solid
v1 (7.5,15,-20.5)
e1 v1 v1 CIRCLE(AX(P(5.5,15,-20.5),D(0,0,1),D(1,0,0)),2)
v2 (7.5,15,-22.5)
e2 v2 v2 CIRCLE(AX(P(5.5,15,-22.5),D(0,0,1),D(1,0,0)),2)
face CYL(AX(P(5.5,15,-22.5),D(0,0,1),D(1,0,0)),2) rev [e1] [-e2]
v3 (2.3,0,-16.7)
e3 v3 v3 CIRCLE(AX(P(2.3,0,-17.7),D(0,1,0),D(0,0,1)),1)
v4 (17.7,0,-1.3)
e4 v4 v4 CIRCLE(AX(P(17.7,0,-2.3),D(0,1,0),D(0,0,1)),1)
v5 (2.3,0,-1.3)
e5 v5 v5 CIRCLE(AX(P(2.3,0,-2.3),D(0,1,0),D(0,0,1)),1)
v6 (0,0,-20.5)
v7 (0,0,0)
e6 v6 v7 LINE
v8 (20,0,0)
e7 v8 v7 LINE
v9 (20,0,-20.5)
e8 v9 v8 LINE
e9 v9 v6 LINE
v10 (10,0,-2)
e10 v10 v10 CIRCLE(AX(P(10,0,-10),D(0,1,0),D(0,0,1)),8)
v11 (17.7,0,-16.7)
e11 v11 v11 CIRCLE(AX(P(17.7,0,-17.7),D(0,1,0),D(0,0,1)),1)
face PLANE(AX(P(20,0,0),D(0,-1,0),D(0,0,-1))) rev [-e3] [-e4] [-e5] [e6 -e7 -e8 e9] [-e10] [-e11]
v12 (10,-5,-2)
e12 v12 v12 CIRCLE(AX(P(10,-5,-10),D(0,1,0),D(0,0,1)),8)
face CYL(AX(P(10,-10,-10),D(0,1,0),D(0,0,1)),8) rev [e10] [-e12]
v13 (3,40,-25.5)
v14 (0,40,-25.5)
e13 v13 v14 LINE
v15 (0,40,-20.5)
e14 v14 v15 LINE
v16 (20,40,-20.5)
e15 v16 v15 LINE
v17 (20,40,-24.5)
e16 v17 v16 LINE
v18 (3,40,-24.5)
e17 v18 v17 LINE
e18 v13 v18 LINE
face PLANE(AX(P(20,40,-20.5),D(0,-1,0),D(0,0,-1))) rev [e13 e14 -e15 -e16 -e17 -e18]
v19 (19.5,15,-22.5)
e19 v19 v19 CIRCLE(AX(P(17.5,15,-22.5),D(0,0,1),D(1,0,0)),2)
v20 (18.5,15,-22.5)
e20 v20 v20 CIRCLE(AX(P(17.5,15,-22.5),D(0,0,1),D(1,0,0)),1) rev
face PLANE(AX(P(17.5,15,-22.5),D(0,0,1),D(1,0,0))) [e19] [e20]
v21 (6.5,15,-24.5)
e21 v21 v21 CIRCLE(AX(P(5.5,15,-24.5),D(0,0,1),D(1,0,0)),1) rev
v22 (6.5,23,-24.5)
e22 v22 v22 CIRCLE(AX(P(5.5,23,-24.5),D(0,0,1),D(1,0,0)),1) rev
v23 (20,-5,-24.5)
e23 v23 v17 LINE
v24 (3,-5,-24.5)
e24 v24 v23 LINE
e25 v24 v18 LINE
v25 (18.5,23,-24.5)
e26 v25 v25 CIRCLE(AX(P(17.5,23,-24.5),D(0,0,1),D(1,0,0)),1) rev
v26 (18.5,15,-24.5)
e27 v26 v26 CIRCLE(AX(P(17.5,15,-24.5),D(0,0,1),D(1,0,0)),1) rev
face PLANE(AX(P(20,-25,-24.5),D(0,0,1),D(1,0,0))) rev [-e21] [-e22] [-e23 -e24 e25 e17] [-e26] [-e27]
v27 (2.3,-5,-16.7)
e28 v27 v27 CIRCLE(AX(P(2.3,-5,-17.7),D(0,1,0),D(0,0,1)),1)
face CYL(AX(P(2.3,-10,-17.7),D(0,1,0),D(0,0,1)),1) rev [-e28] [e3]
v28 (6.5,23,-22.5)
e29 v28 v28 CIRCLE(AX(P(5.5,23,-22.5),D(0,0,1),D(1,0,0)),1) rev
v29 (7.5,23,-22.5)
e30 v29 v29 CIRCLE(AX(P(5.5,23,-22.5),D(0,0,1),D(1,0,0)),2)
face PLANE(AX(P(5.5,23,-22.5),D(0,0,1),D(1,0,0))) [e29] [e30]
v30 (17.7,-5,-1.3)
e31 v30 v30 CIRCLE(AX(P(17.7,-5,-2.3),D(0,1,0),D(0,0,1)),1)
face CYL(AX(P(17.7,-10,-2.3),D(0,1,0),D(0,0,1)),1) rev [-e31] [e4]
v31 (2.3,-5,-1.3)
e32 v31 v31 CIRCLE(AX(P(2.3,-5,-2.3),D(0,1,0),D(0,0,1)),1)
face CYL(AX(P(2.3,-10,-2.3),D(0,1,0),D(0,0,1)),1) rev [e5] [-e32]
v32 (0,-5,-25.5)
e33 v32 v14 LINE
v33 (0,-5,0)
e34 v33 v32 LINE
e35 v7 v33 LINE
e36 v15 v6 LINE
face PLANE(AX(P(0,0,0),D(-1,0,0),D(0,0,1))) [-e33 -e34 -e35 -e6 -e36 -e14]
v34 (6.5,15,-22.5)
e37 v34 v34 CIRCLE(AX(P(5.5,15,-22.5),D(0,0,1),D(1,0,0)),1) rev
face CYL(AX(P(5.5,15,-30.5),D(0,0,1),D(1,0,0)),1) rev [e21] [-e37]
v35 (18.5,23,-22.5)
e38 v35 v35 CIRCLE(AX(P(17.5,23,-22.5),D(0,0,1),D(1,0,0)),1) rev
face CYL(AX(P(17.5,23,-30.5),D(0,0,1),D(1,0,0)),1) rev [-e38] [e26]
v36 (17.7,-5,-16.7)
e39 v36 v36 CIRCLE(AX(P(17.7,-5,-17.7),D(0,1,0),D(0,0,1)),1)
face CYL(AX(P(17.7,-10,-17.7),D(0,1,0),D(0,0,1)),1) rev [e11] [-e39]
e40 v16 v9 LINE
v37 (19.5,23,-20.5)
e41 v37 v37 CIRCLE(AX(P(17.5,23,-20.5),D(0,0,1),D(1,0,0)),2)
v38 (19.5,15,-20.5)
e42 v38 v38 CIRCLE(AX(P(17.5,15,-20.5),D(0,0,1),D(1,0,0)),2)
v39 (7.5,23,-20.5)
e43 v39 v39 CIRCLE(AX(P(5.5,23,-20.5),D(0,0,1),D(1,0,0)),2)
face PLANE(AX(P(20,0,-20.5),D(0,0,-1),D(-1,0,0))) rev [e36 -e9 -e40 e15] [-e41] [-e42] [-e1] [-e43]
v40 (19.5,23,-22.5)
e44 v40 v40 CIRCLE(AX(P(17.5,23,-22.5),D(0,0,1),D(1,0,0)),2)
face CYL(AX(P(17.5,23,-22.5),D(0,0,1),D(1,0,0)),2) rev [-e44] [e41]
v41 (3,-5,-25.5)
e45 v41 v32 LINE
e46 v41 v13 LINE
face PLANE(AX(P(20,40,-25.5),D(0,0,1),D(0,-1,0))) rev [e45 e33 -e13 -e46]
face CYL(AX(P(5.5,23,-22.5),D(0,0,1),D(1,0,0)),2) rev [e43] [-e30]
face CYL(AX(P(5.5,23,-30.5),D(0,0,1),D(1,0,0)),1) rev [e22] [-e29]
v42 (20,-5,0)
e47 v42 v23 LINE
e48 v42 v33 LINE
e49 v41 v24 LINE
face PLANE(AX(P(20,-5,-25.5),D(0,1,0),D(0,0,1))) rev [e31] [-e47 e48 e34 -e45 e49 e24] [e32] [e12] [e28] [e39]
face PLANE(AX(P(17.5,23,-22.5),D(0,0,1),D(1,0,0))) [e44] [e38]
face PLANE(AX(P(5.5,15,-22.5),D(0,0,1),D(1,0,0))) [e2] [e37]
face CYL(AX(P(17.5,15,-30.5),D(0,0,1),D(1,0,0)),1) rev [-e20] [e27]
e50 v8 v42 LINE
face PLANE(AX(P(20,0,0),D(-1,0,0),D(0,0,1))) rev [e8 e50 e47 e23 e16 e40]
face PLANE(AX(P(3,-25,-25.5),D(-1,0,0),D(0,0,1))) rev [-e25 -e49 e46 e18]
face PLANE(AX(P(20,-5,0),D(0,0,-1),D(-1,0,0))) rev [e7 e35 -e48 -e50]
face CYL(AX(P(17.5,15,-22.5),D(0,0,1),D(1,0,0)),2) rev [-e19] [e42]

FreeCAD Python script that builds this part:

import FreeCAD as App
import Part
import Sketcher
Q = App.Units.Quantity

doc = App.newDocument("Part")
params = doc.addObject("Spreadsheet::Sheet", "Params")
for row, (alias, value) in enumerate([
    ("sketch1_width", "5 mm"),
    ("sketch1_width2", "45 mm"),
    ("sketch1_height", "20.5 mm"),
    ("pad1_length", "20 mm"),
    ("sketch2_diameter", "16 mm"),
    ("sketch2_diameter2", "2 mm"),
    ("pocket1_length", "10 mm"),
    ("sketch3_diameter", "2 mm"),
    ("pocket2_length", "10 mm"),
    ("sketch4_diameter", "4 mm"),
    ("pocket3_length", "2 mm"),
    ("sketch5_width", "17 mm"),
    ("sketch5_height", "1 mm"),
    ("pocket4_length", "65 mm"),
], start=1):
    params.set(f"A{row}", alias)
    params.set(f"B{row}", "=" + value)
    params.setAlias(f"B{row}", alias)

body = doc.addObject("PartDesign::Body", "Body")

sketch1 = body.newObject("Sketcher::SketchObject", "Sketch")
sketch1.AttachmentSupport = (doc.getObject("YZ_Plane"), [""])
sketch1.MapMode = "FlatFace"
sketch1.addGeometry([
    Part.LineSegment(App.Vector(0, -20.5, 0), App.Vector(0, 0, 0)),
    Part.LineSegment(App.Vector(0, 0, 0), App.Vector(-5, 0, 0)),
    Part.LineSegment(App.Vector(-5, 0, 0), App.Vector(-5, -25.5, 0)),
    Part.LineSegment(App.Vector(-5, -25.5, 0), App.Vector(40, -25.5, 0)),
    Part.LineSegment(App.Vector(40, -25.5, 0), App.Vector(40, -20.5, 0)),
    Part.LineSegment(App.Vector(40, -20.5, 0), App.Vector(0, -20.5, 0)),
], False)
sketch1.addConstraint([
    Sketcher.Constraint("Coincident", 0, 2, 1, 1),
    Sketcher.Constraint("Coincident", 1, 2, 2, 1),
    Sketcher.Constraint("Coincident", 2, 2, 3, 1),
    Sketcher.Constraint("Coincident", 3, 2, 4, 1),
    Sketcher.Constraint("Coincident", 4, 2, 5, 1),
    Sketcher.Constraint("Coincident", 5, 2, 0, 1),
    Sketcher.Constraint("Vertical", 0),
    Sketcher.Constraint("Horizontal", 1),
    Sketcher.Constraint("Vertical", 2),
    Sketcher.Constraint("Horizontal", 3),
    Sketcher.Constraint("Vertical", 4),
    Sketcher.Constraint("Horizontal", 5),
    Sketcher.Constraint("Coincident", 0, 2, -1, 1),
    Sketcher.Constraint("Equal", 1, 4),
    Sketcher.Constraint("DistanceX", 1, 2, 1, 1, Q("5 mm")),
    Sketcher.Constraint("DistanceX", 3, 1, 3, 2, Q("45 mm")),
    Sketcher.Constraint("DistanceY", 0, 1, 0, 2, Q("20.5 mm")),
])
sketch1.setExpression("Constraints[14]", "Params.sketch1_width")
sketch1.setExpression("Constraints[15]", "Params.sketch1_width2")
sketch1.setExpression("Constraints[16]", "Params.sketch1_height")
pad1 = body.newObject("PartDesign::Pad", "Pad")
pad1.Profile = sketch1
pad1.setExpression("Length", "Params.pad1_length")

sketch2 = body.newObject("Sketcher::SketchObject", "Sketch001")
sketch2.AttachmentSupport = (doc.getObject("XZ_Plane"), [""])
sketch2.MapMode = "FlatFace"
sketch2.addGeometry([
    Part.Circle(App.Vector(10, -10, 0), App.Vector(0, 0, 1), 8),
    Part.Circle(App.Vector(2.3, -17.7, 0), App.Vector(0, 0, 1), 1),
    Part.Circle(App.Vector(17.7, -17.7, 0), App.Vector(0, 0, 1), 1),
    Part.Circle(App.Vector(17.7, -2.3, 0), App.Vector(0, 0, 1), 1),
    Part.Circle(App.Vector(2.3, -2.3, 0), App.Vector(0, 0, 1), 1),
], False)
sketch2.addConstraint([
    Sketcher.Constraint("Equal", 1, 2),
    Sketcher.Constraint("Equal", 2, 3),
    Sketcher.Constraint("Equal", 3, 4),
    Sketcher.Constraint("Horizontal", 1, 3, 2, 3),
    Sketcher.Constraint("Horizontal", 3, 3, 4, 3),
    Sketcher.Constraint("Vertical", 2, 3, 3, 3),
    Sketcher.Constraint("Vertical", 1, 3, 4, 3),
    Sketcher.Constraint("Diameter", 0, Q("16 mm")),
    Sketcher.Constraint("Diameter", 1, Q("2 mm")),
    Sketcher.Constraint("DistanceX", -1, 1, 0, 3, Q("10 mm")),
    Sketcher.Constraint("DistanceY", 0, 3, -1, 1, Q("10 mm")),
    Sketcher.Constraint("DistanceX", -1, 1, 1, 3, Q("2.3 mm")),
    Sketcher.Constraint("DistanceY", 1, 3, -1, 1, Q("17.7 mm")),
    Sketcher.Constraint("DistanceX", -1, 1, 2, 3, Q("17.7 mm")),
    Sketcher.Constraint("DistanceY", 3, 3, -1, 1, Q("2.3 mm")),
])
sketch2.setExpression("Constraints[7]", "Params.sketch2_diameter")
sketch2.setExpression("Constraints[8]", "Params.sketch2_diameter2")
pocket1 = body.newObject("PartDesign::Pocket", "Pocket")
pocket1.Profile = sketch2
pocket1.setExpression("Length", "Params.pocket1_length")
pocket1.Reversed = True

sketch3 = body.newObject("Sketcher::SketchObject", "Sketch002")
sketch3.AttachmentSupport = (doc.getObject("XY_Plane"), [""])
sketch3.MapMode = "FlatFace"
sketch3.AttachmentOffset = App.Placement(App.Vector(0, 0, -20.5), App.Rotation())
sketch3.addGeometry([
    Part.Circle(App.Vector(5.5, 15, 0), App.Vector(0, 0, 1), 1),
    Part.Circle(App.Vector(5.5, 23, 0), App.Vector(0, 0, 1), 1),
    Part.Circle(App.Vector(17.5, 23, 0), App.Vector(0, 0, 1), 1),
    Part.Circle(App.Vector(17.5, 15, 0), App.Vector(0, 0, 1), 1),
], False)
sketch3.addConstraint([
    Sketcher.Constraint("Equal", 0, 1),
    Sketcher.Constraint("Equal", 1, 2),
    Sketcher.Constraint("Equal", 2, 3),
    Sketcher.Constraint("Horizontal", 1, 3, 2, 3),
    Sketcher.Constraint("Horizontal", 0, 3, 3, 3),
    Sketcher.Constraint("Vertical", 0, 3, 1, 3),
    Sketcher.Constraint("Vertical", 2, 3, 3, 3),
    Sketcher.Constraint("Diameter", 0, Q("2 mm")),
    Sketcher.Constraint("DistanceY", -1, 1, 0, 3, Q("15 mm")),
    Sketcher.Constraint("DistanceY", -1, 1, 1, 3, Q("23 mm")),
    Sketcher.Constraint("DistanceX", 1, 3, 2, 3, Q("12 mm")),
    Sketcher.Constraint("DistanceX", -1, 1, 0, 3, Q("5.5 mm")),
])
sketch3.setExpression("Constraints[7]", "Params.sketch3_diameter")
pocket2 = body.newObject("PartDesign::Pocket", "Pocket001")
pocket2.Profile = sketch3
pocket2.setExpression("Length", "Params.pocket2_length")

sketch4 = body.newObject("Sketcher::SketchObject", "Sketch003")
sketch4.AttachmentSupport = (doc.getObject("XY_Plane"), [""])
sketch4.MapMode = "FlatFace"
sketch4.AttachmentOffset = App.Placement(App.Vector(0, 0, -20.5), App.Rotation())
sketch4.addGeometry([
    Part.Circle(App.Vector(5.5, 23, 0), App.Vector(0, 0, 1), 2),
    Part.Circle(App.Vector(5.5, 15, 0), App.Vector(0, 0, 1), 2),
    Part.Circle(App.Vector(17.5, 15, 0), App.Vector(0, 0, 1), 2),
    Part.Circle(App.Vector(17.5, 23, 0), App.Vector(0, 0, 1), 2),
], False)
sketch4.addConstraint([
    Sketcher.Constraint("Equal", 0, 1),
    Sketcher.Constraint("Equal", 1, 2),
    Sketcher.Constraint("Equal", 2, 3),
    Sketcher.Constraint("Horizontal", 1, 3, 2, 3),
    Sketcher.Constraint("Horizontal", 0, 3, 3, 3),
    Sketcher.Constraint("Vertical", 0, 3, 1, 3),
    Sketcher.Constraint("Vertical", 2, 3, 3, 3),
    Sketcher.Constraint("Diameter", 0, Q("4 mm")),
    Sketcher.Constraint("DistanceY", -1, 1, 0, 3, Q("23 mm")),
    Sketcher.Constraint("DistanceY", -1, 1, 1, 3, Q("15 mm")),
    Sketcher.Constraint("DistanceX", 1, 3, 2, 3, Q("12 mm")),
    Sketcher.Constraint("DistanceX", -1, 1, 0, 3, Q("5.5 mm")),
])
sketch4.setExpression("Constraints[7]", "Params.sketch4_diameter")
pocket3 = body.newObject("PartDesign::Pocket", "Pocket002")
pocket3.Profile = sketch4
pocket3.setExpression("Length", "Params.pocket3_length")

sketch5 = body.newObject("Sketcher::SketchObject", "Sketch004")
sketch5.AttachmentSupport = (doc.getObject("XZ_Plane"), [""])
sketch5.MapMode = "FlatFace"
sketch5.AttachmentOffset = App.Placement(App.Vector(0, 0, -40), App.Rotation())
sketch5.addGeometry([
    Part.LineSegment(App.Vector(3, -25.5, 0), App.Vector(3, -24.5, 0)),
    Part.LineSegment(App.Vector(3, -24.5, 0), App.Vector(20, -24.5, 0)),
    Part.LineSegment(App.Vector(20, -24.5, 0), App.Vector(20, -25.5, 0)),
    Part.LineSegment(App.Vector(20, -25.5, 0), App.Vector(3, -25.5, 0)),
], False)
sketch5.addConstraint([
    Sketcher.Constraint("Coincident", 0, 2, 1, 1),
    Sketcher.Constraint("Coincident", 1, 2, 2, 1),
    Sketcher.Constraint("Coincident", 2, 2, 3, 1),
    Sketcher.Constraint("Coincident", 3, 2, 0, 1),
    Sketcher.Constraint("Vertical", 0),
    Sketcher.Constraint("Horizontal", 1),
    Sketcher.Constraint("Vertical", 2),
    Sketcher.Constraint("Horizontal", 3),
    Sketcher.Constraint("DistanceX", 1, 1, 1, 2, Q("17 mm")),
    Sketcher.Constraint("DistanceY", 0, 1, 0, 2, Q("1 mm")),
    Sketcher.Constraint("DistanceX", -1, 1, 0, 2, Q("3 mm")),
    Sketcher.Constraint("DistanceY", 0, 2, -1, 1, Q("24.5 mm")),
])
sketch5.setExpression("Constraints[8]", "Params.sketch5_width")
sketch5.setExpression("Constraints[9]", "Params.sketch5_height")
pocket4 = body.newObject("PartDesign::Pocket", "Pocket003")
pocket4.Profile = sketch5
pocket4.setExpression("Length", "Params.pocket4_length")
pocket4.Reversed = True

doc.recompute()
